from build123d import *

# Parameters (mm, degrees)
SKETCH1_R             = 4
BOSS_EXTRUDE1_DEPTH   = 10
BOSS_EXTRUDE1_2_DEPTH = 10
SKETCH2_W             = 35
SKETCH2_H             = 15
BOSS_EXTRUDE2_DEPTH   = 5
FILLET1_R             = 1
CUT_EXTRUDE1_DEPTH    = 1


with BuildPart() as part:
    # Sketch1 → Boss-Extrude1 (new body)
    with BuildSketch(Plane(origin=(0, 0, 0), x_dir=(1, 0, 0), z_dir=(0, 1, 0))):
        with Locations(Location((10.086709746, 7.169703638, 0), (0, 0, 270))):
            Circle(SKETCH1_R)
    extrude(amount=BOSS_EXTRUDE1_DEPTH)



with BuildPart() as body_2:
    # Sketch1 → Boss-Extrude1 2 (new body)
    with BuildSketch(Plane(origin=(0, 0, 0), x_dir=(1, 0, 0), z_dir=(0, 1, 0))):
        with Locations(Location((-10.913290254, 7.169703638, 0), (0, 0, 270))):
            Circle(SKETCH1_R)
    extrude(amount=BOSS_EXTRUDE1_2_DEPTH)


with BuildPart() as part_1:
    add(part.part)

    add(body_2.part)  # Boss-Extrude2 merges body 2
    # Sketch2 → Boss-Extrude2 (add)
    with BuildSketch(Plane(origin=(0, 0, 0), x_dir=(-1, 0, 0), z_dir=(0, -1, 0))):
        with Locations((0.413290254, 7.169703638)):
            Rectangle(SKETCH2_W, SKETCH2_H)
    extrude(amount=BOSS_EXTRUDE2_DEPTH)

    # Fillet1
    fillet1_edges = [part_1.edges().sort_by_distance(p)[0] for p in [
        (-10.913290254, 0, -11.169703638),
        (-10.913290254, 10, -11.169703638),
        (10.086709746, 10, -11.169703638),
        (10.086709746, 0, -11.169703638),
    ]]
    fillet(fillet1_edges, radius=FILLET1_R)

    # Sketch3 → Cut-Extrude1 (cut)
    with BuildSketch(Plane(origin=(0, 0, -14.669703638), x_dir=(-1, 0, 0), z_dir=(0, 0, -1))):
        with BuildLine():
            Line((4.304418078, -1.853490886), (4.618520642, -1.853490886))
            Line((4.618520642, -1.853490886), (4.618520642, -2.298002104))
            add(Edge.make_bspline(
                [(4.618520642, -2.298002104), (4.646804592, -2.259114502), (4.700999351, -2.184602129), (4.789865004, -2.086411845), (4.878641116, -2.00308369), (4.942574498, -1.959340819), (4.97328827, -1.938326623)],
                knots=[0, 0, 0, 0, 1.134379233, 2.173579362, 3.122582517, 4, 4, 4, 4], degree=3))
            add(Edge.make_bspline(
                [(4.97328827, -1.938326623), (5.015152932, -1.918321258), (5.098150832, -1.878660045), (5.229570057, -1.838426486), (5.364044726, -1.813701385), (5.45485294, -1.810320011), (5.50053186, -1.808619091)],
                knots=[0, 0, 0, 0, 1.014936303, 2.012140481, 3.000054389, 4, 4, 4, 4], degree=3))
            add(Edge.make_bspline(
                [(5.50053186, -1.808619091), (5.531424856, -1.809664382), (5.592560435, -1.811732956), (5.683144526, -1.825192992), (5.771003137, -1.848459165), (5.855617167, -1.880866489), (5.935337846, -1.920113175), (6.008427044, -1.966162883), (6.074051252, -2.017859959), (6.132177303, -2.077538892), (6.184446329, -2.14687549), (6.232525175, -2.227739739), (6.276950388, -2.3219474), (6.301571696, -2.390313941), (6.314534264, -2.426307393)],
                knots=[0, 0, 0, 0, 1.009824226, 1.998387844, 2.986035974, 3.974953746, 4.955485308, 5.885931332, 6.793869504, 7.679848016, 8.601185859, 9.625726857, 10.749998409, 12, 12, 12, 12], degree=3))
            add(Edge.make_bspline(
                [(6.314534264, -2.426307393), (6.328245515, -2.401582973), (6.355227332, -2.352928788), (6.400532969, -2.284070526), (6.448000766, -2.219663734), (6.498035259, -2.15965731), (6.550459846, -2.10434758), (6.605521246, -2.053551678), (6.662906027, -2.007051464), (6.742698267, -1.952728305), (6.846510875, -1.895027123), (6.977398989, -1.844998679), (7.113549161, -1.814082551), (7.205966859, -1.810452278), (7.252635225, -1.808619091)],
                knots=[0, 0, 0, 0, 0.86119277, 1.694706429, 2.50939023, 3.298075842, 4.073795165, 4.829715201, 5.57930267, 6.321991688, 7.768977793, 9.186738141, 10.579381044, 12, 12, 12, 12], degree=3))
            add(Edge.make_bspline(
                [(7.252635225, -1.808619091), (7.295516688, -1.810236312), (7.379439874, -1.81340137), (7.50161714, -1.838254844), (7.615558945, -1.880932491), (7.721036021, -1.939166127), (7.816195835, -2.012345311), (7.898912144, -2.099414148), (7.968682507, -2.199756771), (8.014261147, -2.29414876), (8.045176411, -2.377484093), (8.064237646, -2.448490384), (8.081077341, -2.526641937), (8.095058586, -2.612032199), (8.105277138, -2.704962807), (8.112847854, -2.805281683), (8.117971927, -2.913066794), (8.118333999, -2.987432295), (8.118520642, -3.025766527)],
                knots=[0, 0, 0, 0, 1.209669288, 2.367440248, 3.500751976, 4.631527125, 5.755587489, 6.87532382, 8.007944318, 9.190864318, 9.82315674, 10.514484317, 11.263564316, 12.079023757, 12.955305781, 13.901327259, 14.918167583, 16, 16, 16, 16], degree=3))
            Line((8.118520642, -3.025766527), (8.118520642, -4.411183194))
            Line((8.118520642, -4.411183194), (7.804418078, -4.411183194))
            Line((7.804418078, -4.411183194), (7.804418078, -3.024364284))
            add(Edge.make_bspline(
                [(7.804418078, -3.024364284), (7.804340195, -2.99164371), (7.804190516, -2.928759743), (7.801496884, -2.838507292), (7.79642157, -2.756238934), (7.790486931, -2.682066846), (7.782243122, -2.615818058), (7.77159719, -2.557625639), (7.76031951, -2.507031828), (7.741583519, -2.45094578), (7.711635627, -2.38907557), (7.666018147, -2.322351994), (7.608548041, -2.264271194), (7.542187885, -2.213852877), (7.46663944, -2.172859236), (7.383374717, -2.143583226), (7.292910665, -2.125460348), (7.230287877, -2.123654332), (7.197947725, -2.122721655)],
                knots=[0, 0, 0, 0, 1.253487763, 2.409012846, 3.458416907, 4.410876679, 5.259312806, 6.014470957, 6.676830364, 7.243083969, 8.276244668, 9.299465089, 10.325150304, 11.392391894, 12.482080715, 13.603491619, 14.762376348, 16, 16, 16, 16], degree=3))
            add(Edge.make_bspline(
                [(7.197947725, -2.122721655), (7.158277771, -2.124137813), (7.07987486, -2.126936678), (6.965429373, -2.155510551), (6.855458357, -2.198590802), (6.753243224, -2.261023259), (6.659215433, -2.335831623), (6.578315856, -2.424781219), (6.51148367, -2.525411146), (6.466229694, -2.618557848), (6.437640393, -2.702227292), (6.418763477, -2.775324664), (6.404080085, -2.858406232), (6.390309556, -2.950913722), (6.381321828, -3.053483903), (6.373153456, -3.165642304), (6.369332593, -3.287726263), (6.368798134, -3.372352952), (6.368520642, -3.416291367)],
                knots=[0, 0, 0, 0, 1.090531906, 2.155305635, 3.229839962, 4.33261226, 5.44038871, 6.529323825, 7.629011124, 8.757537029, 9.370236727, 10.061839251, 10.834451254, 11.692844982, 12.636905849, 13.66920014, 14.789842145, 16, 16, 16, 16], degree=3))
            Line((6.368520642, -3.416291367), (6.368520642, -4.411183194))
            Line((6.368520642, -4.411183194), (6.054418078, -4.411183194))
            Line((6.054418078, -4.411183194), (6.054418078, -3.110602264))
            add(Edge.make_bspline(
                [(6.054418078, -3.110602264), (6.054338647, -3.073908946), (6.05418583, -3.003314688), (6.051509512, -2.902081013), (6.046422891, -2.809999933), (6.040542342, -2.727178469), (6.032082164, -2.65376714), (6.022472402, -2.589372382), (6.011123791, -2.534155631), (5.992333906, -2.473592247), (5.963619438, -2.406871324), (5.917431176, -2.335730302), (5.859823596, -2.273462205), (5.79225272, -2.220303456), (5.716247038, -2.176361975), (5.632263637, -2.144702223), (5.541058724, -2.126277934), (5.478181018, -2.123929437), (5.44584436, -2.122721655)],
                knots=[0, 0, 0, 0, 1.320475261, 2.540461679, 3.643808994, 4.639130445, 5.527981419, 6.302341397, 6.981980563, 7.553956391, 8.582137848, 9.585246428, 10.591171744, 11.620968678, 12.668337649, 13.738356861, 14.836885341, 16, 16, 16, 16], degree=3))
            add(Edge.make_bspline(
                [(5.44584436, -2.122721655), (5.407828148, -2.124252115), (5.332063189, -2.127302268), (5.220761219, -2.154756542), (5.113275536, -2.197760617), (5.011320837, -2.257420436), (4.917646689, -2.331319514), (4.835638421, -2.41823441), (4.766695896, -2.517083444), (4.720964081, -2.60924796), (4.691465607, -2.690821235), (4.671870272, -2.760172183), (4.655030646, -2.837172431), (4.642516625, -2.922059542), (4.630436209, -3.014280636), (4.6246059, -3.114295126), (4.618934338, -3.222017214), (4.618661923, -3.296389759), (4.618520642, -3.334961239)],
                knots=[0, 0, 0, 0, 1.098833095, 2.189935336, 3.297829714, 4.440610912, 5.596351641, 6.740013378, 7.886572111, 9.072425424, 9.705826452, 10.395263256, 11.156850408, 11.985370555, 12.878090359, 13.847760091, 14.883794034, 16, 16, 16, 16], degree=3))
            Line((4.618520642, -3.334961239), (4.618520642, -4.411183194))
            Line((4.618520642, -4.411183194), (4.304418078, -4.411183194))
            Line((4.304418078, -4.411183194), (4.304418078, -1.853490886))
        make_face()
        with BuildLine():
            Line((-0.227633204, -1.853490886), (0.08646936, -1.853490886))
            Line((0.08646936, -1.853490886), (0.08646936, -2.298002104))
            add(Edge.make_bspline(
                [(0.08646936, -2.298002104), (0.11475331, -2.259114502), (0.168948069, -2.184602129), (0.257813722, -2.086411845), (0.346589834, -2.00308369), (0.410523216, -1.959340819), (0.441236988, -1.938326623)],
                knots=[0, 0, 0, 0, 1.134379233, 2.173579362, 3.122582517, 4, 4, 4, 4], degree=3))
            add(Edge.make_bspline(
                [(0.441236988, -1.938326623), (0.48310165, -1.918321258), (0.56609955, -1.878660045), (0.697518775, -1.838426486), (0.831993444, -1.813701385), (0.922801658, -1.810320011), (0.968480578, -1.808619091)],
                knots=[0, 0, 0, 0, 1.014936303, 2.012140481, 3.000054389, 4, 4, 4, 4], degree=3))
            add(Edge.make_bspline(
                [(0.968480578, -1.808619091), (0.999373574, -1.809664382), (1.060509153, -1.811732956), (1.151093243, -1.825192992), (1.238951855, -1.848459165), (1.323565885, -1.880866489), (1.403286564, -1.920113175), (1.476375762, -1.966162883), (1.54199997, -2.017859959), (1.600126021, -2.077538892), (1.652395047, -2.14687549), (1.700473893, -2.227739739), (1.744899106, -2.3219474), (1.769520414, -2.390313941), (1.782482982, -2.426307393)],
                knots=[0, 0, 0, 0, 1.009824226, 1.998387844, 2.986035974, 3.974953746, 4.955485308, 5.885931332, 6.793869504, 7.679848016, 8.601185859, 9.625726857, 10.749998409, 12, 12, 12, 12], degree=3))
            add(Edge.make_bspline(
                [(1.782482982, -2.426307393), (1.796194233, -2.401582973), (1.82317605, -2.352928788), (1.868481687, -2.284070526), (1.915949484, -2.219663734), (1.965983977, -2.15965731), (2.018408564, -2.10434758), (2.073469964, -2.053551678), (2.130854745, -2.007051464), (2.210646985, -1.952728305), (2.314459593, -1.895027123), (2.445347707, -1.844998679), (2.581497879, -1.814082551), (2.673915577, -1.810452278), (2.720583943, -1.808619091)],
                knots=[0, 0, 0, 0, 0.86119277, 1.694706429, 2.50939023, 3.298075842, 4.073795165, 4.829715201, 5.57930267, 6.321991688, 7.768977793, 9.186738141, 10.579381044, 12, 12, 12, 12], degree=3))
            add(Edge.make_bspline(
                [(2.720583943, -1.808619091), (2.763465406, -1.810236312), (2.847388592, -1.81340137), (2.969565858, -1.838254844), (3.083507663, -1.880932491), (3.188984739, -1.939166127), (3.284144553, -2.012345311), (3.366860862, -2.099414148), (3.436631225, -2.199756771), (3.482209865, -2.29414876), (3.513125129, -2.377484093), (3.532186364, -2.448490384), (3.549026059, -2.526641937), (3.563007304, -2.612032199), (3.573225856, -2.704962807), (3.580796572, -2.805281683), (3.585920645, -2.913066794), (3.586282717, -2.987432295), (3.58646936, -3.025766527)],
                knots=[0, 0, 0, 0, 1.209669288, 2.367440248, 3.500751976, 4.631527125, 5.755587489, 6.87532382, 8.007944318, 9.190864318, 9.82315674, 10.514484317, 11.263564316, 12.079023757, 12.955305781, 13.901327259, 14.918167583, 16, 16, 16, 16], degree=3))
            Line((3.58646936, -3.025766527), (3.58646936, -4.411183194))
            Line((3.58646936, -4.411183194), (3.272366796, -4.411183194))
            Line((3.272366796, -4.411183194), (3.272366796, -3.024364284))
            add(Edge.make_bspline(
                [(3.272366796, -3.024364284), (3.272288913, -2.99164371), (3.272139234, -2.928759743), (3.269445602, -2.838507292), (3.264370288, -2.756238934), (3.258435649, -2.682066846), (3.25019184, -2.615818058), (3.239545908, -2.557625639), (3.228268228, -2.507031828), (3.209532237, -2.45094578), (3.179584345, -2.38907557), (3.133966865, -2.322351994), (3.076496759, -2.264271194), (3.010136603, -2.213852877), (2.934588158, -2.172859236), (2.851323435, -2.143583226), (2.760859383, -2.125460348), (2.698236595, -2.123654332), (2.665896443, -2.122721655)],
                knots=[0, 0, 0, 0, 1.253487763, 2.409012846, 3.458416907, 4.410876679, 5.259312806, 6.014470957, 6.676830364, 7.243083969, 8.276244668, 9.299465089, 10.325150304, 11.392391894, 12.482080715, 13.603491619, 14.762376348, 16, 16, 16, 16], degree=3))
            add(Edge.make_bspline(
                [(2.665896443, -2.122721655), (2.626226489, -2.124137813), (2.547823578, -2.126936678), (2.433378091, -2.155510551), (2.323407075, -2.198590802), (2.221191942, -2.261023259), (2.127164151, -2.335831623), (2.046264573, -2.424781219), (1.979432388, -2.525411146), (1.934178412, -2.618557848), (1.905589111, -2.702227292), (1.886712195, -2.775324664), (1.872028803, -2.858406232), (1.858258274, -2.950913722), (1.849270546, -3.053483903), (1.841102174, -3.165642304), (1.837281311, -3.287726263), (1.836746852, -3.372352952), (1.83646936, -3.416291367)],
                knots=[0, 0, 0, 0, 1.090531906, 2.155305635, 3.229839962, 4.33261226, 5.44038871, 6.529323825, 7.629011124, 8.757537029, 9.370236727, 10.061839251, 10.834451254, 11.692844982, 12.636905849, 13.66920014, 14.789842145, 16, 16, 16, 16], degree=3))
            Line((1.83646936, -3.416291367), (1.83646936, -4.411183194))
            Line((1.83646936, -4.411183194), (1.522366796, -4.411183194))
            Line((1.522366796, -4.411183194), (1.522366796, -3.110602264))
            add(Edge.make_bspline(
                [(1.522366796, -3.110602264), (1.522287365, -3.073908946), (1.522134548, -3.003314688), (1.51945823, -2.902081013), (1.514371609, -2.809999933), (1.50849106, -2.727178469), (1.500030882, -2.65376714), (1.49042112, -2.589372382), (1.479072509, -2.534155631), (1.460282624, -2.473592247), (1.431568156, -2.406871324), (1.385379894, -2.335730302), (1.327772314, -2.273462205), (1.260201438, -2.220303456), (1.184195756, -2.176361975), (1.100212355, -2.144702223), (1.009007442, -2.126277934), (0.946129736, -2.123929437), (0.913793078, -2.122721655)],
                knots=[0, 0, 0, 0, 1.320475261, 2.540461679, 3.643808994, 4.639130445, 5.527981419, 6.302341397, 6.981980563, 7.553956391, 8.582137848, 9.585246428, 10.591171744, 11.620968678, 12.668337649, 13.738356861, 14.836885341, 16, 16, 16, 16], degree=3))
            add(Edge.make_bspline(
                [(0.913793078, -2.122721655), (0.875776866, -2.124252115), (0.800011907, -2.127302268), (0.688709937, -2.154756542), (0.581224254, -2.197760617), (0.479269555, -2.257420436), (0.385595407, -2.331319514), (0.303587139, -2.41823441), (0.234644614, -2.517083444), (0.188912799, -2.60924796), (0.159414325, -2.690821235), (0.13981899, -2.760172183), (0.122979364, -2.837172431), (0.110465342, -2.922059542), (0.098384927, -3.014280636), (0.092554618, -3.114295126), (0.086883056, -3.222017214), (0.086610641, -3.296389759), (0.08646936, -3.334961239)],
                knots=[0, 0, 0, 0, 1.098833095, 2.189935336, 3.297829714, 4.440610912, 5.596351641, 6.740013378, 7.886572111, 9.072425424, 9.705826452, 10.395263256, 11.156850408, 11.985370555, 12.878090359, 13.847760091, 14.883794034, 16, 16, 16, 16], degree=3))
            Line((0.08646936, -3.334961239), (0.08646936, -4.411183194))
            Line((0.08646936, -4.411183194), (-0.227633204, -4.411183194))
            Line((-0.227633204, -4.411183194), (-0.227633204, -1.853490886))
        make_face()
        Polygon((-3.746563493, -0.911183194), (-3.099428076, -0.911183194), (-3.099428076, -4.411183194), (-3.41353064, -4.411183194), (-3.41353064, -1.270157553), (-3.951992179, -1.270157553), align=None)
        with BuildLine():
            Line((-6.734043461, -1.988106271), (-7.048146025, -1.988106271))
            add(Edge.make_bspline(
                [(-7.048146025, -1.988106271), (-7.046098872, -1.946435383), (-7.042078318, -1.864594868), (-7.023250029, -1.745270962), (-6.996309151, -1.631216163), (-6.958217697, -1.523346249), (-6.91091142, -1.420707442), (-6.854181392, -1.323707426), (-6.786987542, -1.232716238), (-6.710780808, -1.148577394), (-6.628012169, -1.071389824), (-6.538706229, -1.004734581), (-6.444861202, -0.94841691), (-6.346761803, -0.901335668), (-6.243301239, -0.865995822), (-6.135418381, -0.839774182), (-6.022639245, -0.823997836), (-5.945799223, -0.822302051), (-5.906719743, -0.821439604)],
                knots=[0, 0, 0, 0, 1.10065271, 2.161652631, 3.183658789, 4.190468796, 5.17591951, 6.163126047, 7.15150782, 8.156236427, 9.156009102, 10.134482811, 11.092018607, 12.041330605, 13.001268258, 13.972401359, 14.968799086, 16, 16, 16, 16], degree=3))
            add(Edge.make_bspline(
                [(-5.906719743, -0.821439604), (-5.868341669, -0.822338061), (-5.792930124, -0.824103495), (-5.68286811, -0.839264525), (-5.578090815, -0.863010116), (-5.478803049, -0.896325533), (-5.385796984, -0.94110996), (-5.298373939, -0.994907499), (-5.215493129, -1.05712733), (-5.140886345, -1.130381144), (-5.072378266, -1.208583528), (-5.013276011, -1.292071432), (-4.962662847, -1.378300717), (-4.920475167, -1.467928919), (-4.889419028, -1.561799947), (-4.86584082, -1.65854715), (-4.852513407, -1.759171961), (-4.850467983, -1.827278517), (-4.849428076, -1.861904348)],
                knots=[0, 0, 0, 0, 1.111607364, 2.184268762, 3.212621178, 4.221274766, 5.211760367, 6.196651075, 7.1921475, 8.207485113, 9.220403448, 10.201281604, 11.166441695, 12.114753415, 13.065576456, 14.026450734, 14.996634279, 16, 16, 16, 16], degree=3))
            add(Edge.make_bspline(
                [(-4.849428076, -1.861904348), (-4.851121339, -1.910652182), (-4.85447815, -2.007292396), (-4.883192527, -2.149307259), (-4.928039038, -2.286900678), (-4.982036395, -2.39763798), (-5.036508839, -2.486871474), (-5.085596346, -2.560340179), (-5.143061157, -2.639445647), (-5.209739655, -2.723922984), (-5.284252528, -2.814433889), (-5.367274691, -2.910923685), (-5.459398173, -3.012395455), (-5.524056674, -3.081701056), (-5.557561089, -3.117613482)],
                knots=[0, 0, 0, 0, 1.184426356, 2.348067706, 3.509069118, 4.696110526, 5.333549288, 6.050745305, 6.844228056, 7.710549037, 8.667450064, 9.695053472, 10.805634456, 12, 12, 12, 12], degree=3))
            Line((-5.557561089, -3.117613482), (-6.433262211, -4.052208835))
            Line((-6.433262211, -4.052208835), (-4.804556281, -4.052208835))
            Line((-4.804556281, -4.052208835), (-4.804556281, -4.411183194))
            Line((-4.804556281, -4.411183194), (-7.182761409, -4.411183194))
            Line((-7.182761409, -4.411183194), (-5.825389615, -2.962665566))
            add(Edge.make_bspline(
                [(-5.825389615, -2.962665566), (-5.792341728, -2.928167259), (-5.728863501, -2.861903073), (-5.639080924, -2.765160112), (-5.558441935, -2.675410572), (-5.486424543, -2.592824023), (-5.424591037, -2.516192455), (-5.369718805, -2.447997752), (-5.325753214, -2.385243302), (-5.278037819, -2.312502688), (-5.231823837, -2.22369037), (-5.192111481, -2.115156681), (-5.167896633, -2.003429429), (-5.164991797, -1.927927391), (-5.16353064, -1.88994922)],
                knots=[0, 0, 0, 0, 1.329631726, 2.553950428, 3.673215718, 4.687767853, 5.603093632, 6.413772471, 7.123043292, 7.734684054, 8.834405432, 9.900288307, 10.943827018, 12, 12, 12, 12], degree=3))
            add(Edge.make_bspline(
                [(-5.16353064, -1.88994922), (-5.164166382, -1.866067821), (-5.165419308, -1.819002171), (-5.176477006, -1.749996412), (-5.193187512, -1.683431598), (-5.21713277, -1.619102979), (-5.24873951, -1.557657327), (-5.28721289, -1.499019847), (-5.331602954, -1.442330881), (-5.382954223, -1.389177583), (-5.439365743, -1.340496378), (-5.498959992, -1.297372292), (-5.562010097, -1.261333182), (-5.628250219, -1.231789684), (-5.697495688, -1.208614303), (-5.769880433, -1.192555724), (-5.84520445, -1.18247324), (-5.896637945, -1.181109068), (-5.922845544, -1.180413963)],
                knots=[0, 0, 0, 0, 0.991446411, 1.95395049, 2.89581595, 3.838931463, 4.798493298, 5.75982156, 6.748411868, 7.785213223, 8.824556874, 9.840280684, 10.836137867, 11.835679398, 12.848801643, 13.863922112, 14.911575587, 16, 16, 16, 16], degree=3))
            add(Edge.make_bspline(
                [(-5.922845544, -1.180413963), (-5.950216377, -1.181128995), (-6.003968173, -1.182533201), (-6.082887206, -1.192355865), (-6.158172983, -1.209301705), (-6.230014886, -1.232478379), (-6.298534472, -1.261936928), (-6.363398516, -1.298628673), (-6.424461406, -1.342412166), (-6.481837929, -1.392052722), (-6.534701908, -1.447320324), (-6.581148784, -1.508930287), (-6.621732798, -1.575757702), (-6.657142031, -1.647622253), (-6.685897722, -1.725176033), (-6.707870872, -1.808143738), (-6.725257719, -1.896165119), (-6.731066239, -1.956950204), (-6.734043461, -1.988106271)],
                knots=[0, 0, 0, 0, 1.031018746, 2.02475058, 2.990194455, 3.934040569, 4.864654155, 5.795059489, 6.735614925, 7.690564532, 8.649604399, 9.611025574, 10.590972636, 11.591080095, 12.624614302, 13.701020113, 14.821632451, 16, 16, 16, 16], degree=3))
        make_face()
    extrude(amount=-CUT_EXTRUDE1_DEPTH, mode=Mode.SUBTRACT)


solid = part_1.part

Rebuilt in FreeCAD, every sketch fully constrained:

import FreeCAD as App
import Part
import Sketcher

V = App.Vector


def edges_at(feature, points):
    """Names of the edges that pass closest to the given points."""
    edges = feature.Shape.Edges
    near = lambda p: min(range(len(edges)), key=lambda i: edges[i].distToShape(Part.Vertex(*p))[0])
    return sorted({f"Edge{near(p) + 1}" for p in points})

doc = App.newDocument("Part")
body = doc.addObject("PartDesign::Body", "Body")

sketch1 = doc.addObject("Sketcher::SketchObject", "Sketch")
body.addObject(sketch1)
sketch1.AttachmentSupport = (doc.XZ_Plane, [""])
sketch1.MapMode = "FlatFace"
sketch1.addGeometry(Part.Circle(V(10.08671, -7.169704, 0), V(0, 0, 1), 4), False)
sketch1.addConstraint(Sketcher.Constraint("Diameter", 0, 8.0))
sketch1.addConstraint(Sketcher.Constraint("DistanceX", -1, 1, 0, 3, 10.08671))
sketch1.addConstraint(Sketcher.Constraint("DistanceY", 0, 3, -1, 1, 7.169704))
pad1 = doc.addObject("PartDesign::Pad", "Pad")
body.addObject(pad1)
pad1.Profile = sketch1
pad1.Length = 10
pad1.Reversed = True
body2 = doc.addObject("PartDesign::Body", "Body001")

sketch2 = doc.addObject("Sketcher::SketchObject", "Sketch001")
body2.addObject(sketch2)
sketch2.AttachmentSupport = (doc.getObject("XZ_Plane001"), [""])
sketch2.MapMode = "FlatFace"
sketch2.addGeometry(Part.Circle(V(-10.91329, -7.169704, 0), V(0, 0, 1), 4), False)
sketch2.addConstraint(Sketcher.Constraint("Diameter", 0, 8.0))
sketch2.addConstraint(Sketcher.Constraint("DistanceX", 0, 3, -1, 1, 10.91329))
sketch2.addConstraint(Sketcher.Constraint("DistanceY", 0, 3, -1, 1, 7.169704))
pad2 = doc.addObject("PartDesign::Pad", "Pad001")
body2.addObject(pad2)
pad2.Profile = sketch2
pad2.Length = 10
pad2.Reversed = True
body.AllowCompound = True
doc.recompute()

boolean = doc.addObject("PartDesign::Boolean", "Boolean")
body.addObject(boolean)
boolean.Type = "Fuse"
boolean.addObjects([body2])

sketch3 = doc.addObject("Sketcher::SketchObject", "Sketch002")
body.addObject(sketch3)
sketch3.AttachmentSupport = (doc.XZ_Plane, [""])
sketch3.MapMode = "FlatFace"
sketch3.addGeometry(Part.LineSegment(V(17.08671, -14.669704, 0), V(17.08671, 0.330296, 0)), False)
sketch3.addGeometry(Part.LineSegment(V(17.08671, 0.330296, 0), V(-17.91329, 0.330296, 0)), False)
sketch3.addGeometry(Part.LineSegment(V(-17.91329, 0.330296, 0), V(-17.91329, -14.669704, 0)), False)
sketch3.addGeometry(Part.LineSegment(V(-17.91329, -14.669704, 0), V(17.08671, -14.669704, 0)), False)
sketch3.addConstraint(Sketcher.Constraint("Coincident", 0, 2, 1, 1))
sketch3.addConstraint(Sketcher.Constraint("Coincident", 1, 2, 2, 1))
sketch3.addConstraint(Sketcher.Constraint("Coincident", 2, 2, 3, 1))
sketch3.addConstraint(Sketcher.Constraint("Coincident", 3, 2, 0, 1))
sketch3.addConstraint(Sketcher.Constraint("Vertical", 0))
sketch3.addConstraint(Sketcher.Constraint("Horizontal", 1))
sketch3.addConstraint(Sketcher.Constraint("Vertical", 2))
sketch3.addConstraint(Sketcher.Constraint("Horizontal", 3))
sketch3.addConstraint(Sketcher.Constraint("DistanceX", 1, 2, 1, 1, 35.0))
sketch3.addConstraint(Sketcher.Constraint("DistanceY", 0, 1, 0, 2, 15.0))
sketch3.addConstraint(Sketcher.Constraint("DistanceX", -1, 1, 0, 2, 17.08671))
sketch3.addConstraint(Sketcher.Constraint("DistanceY", -1, 1, 0, 2, 0.330296))
pad3 = doc.addObject("PartDesign::Pad", "Pad002")
body.addObject(pad3)
pad3.Profile = sketch3
pad3.Length = 5
doc.recompute()

fillet = doc.addObject("PartDesign::Fillet", "Fillet")
body.addObject(fillet)
fillet.Base = (pad3, edges_at(pad3, [
    (-10.913, 0, -11.17),
    (-10.913, 10, -11.17),
    (10.087, 10, -11.17),
    (10.087, 0, -11.17),
]))
fillet.Radius = 1

sketch4 = doc.addObject("Sketcher::SketchObject", "Sketch003")
body.addObject(sketch4)
sketch4.AttachmentSupport = (doc.XY_Plane, [""])
sketch4.MapMode = "FlatFace"
sketch4.AttachmentOffset = App.Placement(V(0, 0, -14.669704), App.Rotation())
sketch4.addGeometry(Part.LineSegment(V(-4.618521, -1.853491, 0), V(-4.304418, -1.853491, 0)), False)
sketch4.addGeometry(Part.LineSegment(V(-4.304418, -1.853491, 0), V(-4.304418, -4.411183, 0)), False)
sketch4.addGeometry(Part.LineSegment(V(-4.304418, -4.411183, 0), V(-4.618521, -4.411183, 0)), False)
sketch4.addGeometry(Part.LineSegment(V(-4.618521, -4.411183, 0), V(-4.618521, -3.334961, 0)), False)
sketch4.addGeometry(Part.BSplineCurve([V(-5.445844, -2.122722, 0), V(-5.407828, -2.124252, 0), V(-5.332063, -2.127302, 0), V(-5.220761, -2.154757, 0), V(-5.113276, -2.197761, 0), V(-5.011321, -2.25742, 0), V(-4.917647, -2.33132, 0), V(-4.835638, -2.418234, 0), V(-4.766696, -2.517083, 0), V(-4.720964, -2.609248, 0), V(-4.691466, -2.690821, 0), V(-4.67187, -2.760172, 0), V(-4.655031, -2.837172, 0), V(-4.642517, -2.92206, 0), V(-4.630436, -3.014281, 0), V(-4.624606, -3.114295, 0), V(-4.618934, -3.222017, 0), V(-4.618662, -3.29639, 0), V(-4.618521, -3.334961, 0)], [4, 1, 1, 1, 1, 1, 1, 1, 1, 1, 1, 1, 1, 1, 1, 1, 4], [0, 1.098833095, 2.189935336, 3.297829714, 4.440610912, 5.596351641, 6.740013378, 7.886572111, 9.072425424, 9.705826452, 10.395263256, 11.156850408, 11.985370555, 12.878090359, 13.847760091, 14.883794034, 16], False, 3, [1, 1, 1, 1, 1, 1, 1, 1, 1, 1, 1, 1, 1, 1, 1, 1, 1, 1, 1], False), False)
sketch4.addGeometry(Part.BSplineCurve([V(-6.054418, -3.110602, 0), V(-6.054339, -3.073909, 0), V(-6.054186, -3.003315, 0), V(-6.05151, -2.902081, 0), V(-6.046423, -2.81, 0), V(-6.040542, -2.727178, 0), V(-6.032082, -2.653767, 0), V(-6.022472, -2.589372, 0), V(-6.011124, -2.534156, 0), V(-5.992334, -2.473592, 0), V(-5.963619, -2.406871, 0), V(-5.917431, -2.33573, 0), V(-5.859824, -2.273462, 0), V(-5.792253, -2.220303, 0), V(-5.716247, -2.176362, 0), V(-5.632264, -2.144702, 0), V(-5.541059, -2.126278, 0), V(-5.478181, -2.123929, 0), V(-5.445844, -2.122722, 0)], [4, 1, 1, 1, 1, 1, 1, 1, 1, 1, 1, 1, 1, 1, 1, 1, 4], [0, 1.320475261, 2.540461679, 3.643808994, 4.639130445, 5.527981419, 6.302341397, 6.981980563, 7.553956391, 8.582137848, 9.585246428, 10.591171744, 11.620968678, 12.668337649, 13.738356861, 14.836885341, 16], False, 3, [1, 1, 1, 1, 1, 1, 1, 1, 1, 1, 1, 1, 1, 1, 1, 1, 1, 1, 1], False), False)
sketch4.addGeometry(Part.LineSegment(V(-6.054418, -3.110602, 0), V(-6.054418, -4.411183, 0)), False)
sketch4.addGeometry(Part.LineSegment(V(-6.054418, -4.411183, 0), V(-6.368521, -4.411183, 0)), False)
sketch4.addGeometry(Part.LineSegment(V(-6.368521, -4.411183, 0), V(-6.368521, -3.416291, 0)), False)
sketch4.addGeometry(Part.BSplineCurve([V(-7.197948, -2.122722, 0), V(-7.158278, -2.124138, 0), V(-7.079875, -2.126937, 0), V(-6.965429, -2.155511, 0), V(-6.855458, -2.198591, 0), V(-6.753243, -2.261023, 0), V(-6.659215, -2.335832, 0), V(-6.578316, -2.424781, 0), V(-6.511484, -2.525411, 0), V(-6.46623, -2.618558, 0), V(-6.43764, -2.702227, 0), V(-6.418763, -2.775325, 0), V(-6.40408, -2.858406, 0), V(-6.39031, -2.950914, 0), V(-6.381322, -3.053484, 0), V(-6.373153, -3.165642, 0), V(-6.369333, -3.287726, 0), V(-6.368798, -3.372353, 0), V(-6.368521, -3.416291, 0)], [4, 1, 1, 1, 1, 1, 1, 1, 1, 1, 1, 1, 1, 1, 1, 1, 4], [0, 1.090531906, 2.155305635, 3.229839962, 4.33261226, 5.44038871, 6.529323825, 7.629011124, 8.757537029, 9.370236727, 10.061839251, 10.834451254, 11.692844982, 12.636905849, 13.66920014, 14.789842145, 16], False, 3, [1, 1, 1, 1, 1, 1, 1, 1, 1, 1, 1, 1, 1, 1, 1, 1, 1, 1, 1], False), False)
sketch4.addGeometry(Part.BSplineCurve([V(-7.804418, -3.024364, 0), V(-7.80434, -2.991644, 0), V(-7.804191, -2.92876, 0), V(-7.801497, -2.838507, 0), V(-7.796422, -2.756239, 0), V(-7.790487, -2.682067, 0), V(-7.782243, -2.615818, 0), V(-7.771597, -2.557626, 0), V(-7.76032, -2.507032, 0), V(-7.741584, -2.450946, 0), V(-7.711636, -2.389076, 0), V(-7.666018, -2.322352, 0), V(-7.608548, -2.264271, 0), V(-7.542188, -2.213853, 0), V(-7.466639, -2.172859, 0), V(-7.383375, -2.143583, 0), V(-7.292911, -2.12546, 0), V(-7.230288, -2.123654, 0), V(-7.197948, -2.122722, 0)], [4, 1, 1, 1, 1, 1, 1, 1, 1, 1, 1, 1, 1, 1, 1, 1, 4], [0, 1.253487763, 2.409012846, 3.458416907, 4.410876679, 5.259312806, 6.014470957, 6.676830364, 7.243083969, 8.276244668, 9.299465089, 10.325150304, 11.392391894, 12.482080715, 13.603491619, 14.762376348, 16], False, 3, [1, 1, 1, 1, 1, 1, 1, 1, 1, 1, 1, 1, 1, 1, 1, 1, 1, 1, 1], False), False)
sketch4.addGeometry(Part.LineSegment(V(-7.804418, -3.024364, 0), V(-7.804418, -4.411183, 0)), False)
sketch4.addGeometry(Part.LineSegment(V(-7.804418, -4.411183, 0), V(-8.118521, -4.411183, 0)), False)
sketch4.addGeometry(Part.LineSegment(V(-8.118521, -4.411183, 0), V(-8.118521, -3.025767, 0)), False)
sketch4.addGeometry(Part.BSplineCurve([V(-7.252635, -1.808619, 0), V(-7.295517, -1.810236, 0), V(-7.37944, -1.813401, 0), V(-7.501617, -1.838255, 0), V(-7.615559, -1.880932, 0), V(-7.721036, -1.939166, 0), V(-7.816196, -2.012345, 0), V(-7.898912, -2.099414, 0), V(-7.968683, -2.199757, 0), V(-8.014261, -2.294149, 0), V(-8.045176, -2.377484, 0), V(-8.064238, -2.44849, 0), V(-8.081077, -2.526642, 0), V(-8.095059, -2.612032, 0), V(-8.105277, -2.704963, 0), V(-8.112848, -2.805282, 0), V(-8.117972, -2.913067, 0), V(-8.118334, -2.987432, 0), V(-8.118521, -3.025767, 0)], [4, 1, 1, 1, 1, 1, 1, 1, 1, 1, 1, 1, 1, 1, 1, 1, 4], [0, 1.209669288, 2.367440248, 3.500751976, 4.631527125, 5.755587489, 6.87532382, 8.007944318, 9.190864318, 9.82315674, 10.514484317, 11.263564316, 12.079023757, 12.955305781, 13.901327259, 14.918167583, 16], False, 3, [1, 1, 1, 1, 1, 1, 1, 1, 1, 1, 1, 1, 1, 1, 1, 1, 1, 1, 1], False), False)
sketch4.addGeometry(Part.BSplineCurve([V(-6.314534, -2.426307, 0), V(-6.328246, -2.401583, 0), V(-6.355227, -2.352929, 0), V(-6.400533, -2.284071, 0), V(-6.448001, -2.219664, 0), V(-6.498035, -2.159657, 0), V(-6.55046, -2.104348, 0), V(-6.605521, -2.053552, 0), V(-6.662906, -2.007051, 0), V(-6.742698, -1.952728, 0), V(-6.846511, -1.895027, 0), V(-6.977399, -1.844999, 0), V(-7.113549, -1.814083, 0), V(-7.205967, -1.810452, 0), V(-7.252635, -1.808619, 0)], [4, 1, 1, 1, 1, 1, 1, 1, 1, 1, 1, 1, 4], [0, 0.86119277, 1.694706429, 2.50939023, 3.298075842, 4.073795165, 4.829715201, 5.57930267, 6.321991688, 7.768977793, 9.186738141, 10.579381044, 12], False, 3, [1, 1, 1, 1, 1, 1, 1, 1, 1, 1, 1, 1, 1, 1, 1], False), False)
sketch4.addGeometry(Part.BSplineCurve([V(-5.500532, -1.808619, 0), V(-5.531425, -1.809664, 0), V(-5.59256, -1.811733, 0), V(-5.683145, -1.825193, 0), V(-5.771003, -1.848459, 0), V(-5.855617, -1.880866, 0), V(-5.935338, -1.920113, 0), V(-6.008427, -1.966163, 0), V(-6.074051, -2.01786, 0), V(-6.132177, -2.077539, 0), V(-6.184446, -2.146875, 0), V(-6.232525, -2.22774, 0), V(-6.27695, -2.321947, 0), V(-6.301572, -2.390314, 0), V(-6.314534, -2.426307, 0)], [4, 1, 1, 1, 1, 1, 1, 1, 1, 1, 1, 1, 4], [0, 1.009824226, 1.998387844, 2.986035974, 3.974953746, 4.955485308, 5.885931332, 6.793869504, 7.679848016, 8.601185859, 9.625726857, 10.749998409, 12], False, 3, [1, 1, 1, 1, 1, 1, 1, 1, 1, 1, 1, 1, 1, 1, 1], False), False)
sketch4.addGeometry(Part.BSplineCurve([V(-4.973288, -1.938327, 0), V(-5.015153, -1.918321, 0), V(-5.098151, -1.87866, 0), V(-5.22957, -1.838426, 0), V(-5.364045, -1.813701, 0), V(-5.454853, -1.81032, 0), V(-5.500532, -1.808619, 0)], [4, 1, 1, 1, 4], [0, 1.014936303, 2.012140481, 3.000054389, 4], False, 3, [1, 1, 1, 1, 1, 1, 1], False), False)
sketch4.addGeometry(Part.BSplineCurve([V(-4.618521, -2.298002, 0), V(-4.646805, -2.259115, 0), V(-4.700999, -2.184602, 0), V(-4.789865, -2.086412, 0), V(-4.878641, -2.003084, 0), V(-4.942574, -1.959341, 0), V(-4.973288, -1.938327, 0)], [4, 1, 1, 1, 4], [0, 1.134379233, 2.173579362, 3.122582517, 4], False, 3, [1, 1, 1, 1, 1, 1, 1], False), False)
sketch4.addGeometry(Part.LineSegment(V(-4.618521, -2.298002, 0), V(-4.618521, -1.853491, 0)), False)
sketch4.addGeometry(Part.LineSegment(V(-0.086469, -1.853491, 0), V(0.227633, -1.853491, 0)), False)
sketch4.addGeometry(Part.LineSegment(V(0.227633, -1.853491, 0), V(0.227633, -4.411183, 0)), False)
sketch4.addGeometry(Part.LineSegment(V(0.227633, -4.411183, 0), V(-0.086469, -4.411183, 0)), False)
sketch4.addGeometry(Part.LineSegment(V(-0.086469, -4.411183, 0), V(-0.086469, -3.334961, 0)), False)
sketch4.addGeometry(Part.BSplineCurve([V(-0.913793, -2.122722, 0), V(-0.875777, -2.124252, 0), V(-0.800012, -2.127302, 0), V(-0.68871, -2.154757, 0), V(-0.581224, -2.197761, 0), V(-0.47927, -2.25742, 0), V(-0.385595, -2.33132, 0), V(-0.303587, -2.418234, 0), V(-0.234645, -2.517083, 0), V(-0.188913, -2.609248, 0), V(-0.159414, -2.690821, 0), V(-0.139819, -2.760172, 0), V(-0.122979, -2.837172, 0), V(-0.110465, -2.92206, 0), V(-0.098385, -3.014281, 0), V(-0.092555, -3.114295, 0), V(-0.086883, -3.222017, 0), V(-0.086611, -3.29639, 0), V(-0.086469, -3.334961, 0)], [4, 1, 1, 1, 1, 1, 1, 1, 1, 1, 1, 1, 1, 1, 1, 1, 4], [0, 1.098833095, 2.189935336, 3.297829714, 4.440610912, 5.596351641, 6.740013378, 7.886572111, 9.072425424, 9.705826452, 10.395263256, 11.156850408, 11.985370555, 12.878090359, 13.847760091, 14.883794034, 16], False, 3, [1, 1, 1, 1, 1, 1, 1, 1, 1, 1, 1, 1, 1, 1, 1, 1, 1, 1, 1], False), False)
sketch4.addGeometry(Part.BSplineCurve([V(-1.522367, -3.110602, 0), V(-1.522287, -3.073909, 0), V(-1.522135, -3.003315, 0), V(-1.519458, -2.902081, 0), V(-1.514372, -2.81, 0), V(-1.508491, -2.727178, 0), V(-1.500031, -2.653767, 0), V(-1.490421, -2.589372, 0), V(-1.479073, -2.534156, 0), V(-1.460283, -2.473592, 0), V(-1.431568, -2.406871, 0), V(-1.38538, -2.33573, 0), V(-1.327772, -2.273462, 0), V(-1.260201, -2.220303, 0), V(-1.184196, -2.176362, 0), V(-1.100212, -2.144702, 0), V(-1.009007, -2.126278, 0), V(-0.94613, -2.123929, 0), V(-0.913793, -2.122722, 0)], [4, 1, 1, 1, 1, 1, 1, 1, 1, 1, 1, 1, 1, 1, 1, 1, 4], [0, 1.320475261, 2.540461679, 3.643808994, 4.639130445, 5.527981419, 6.302341397, 6.981980563, 7.553956391, 8.582137848, 9.585246428, 10.591171744, 11.620968678, 12.668337649, 13.738356861, 14.836885341, 16], False, 3, [1, 1, 1, 1, 1, 1, 1, 1, 1, 1, 1, 1, 1, 1, 1, 1, 1, 1, 1], False), False)
sketch4.addGeometry(Part.LineSegment(V(-1.522367, -3.110602, 0), V(-1.522367, -4.411183, 0)), False)
sketch4.addGeometry(Part.LineSegment(V(-1.522367, -4.411183, 0), V(-1.836469, -4.411183, 0)), False)
sketch4.addGeometry(Part.LineSegment(V(-1.836469, -4.411183, 0), V(-1.836469, -3.416291, 0)), False)
sketch4.addGeometry(Part.BSplineCurve([V(-2.665896, -2.122722, 0), V(-2.626226, -2.124138, 0), V(-2.547824, -2.126937, 0), V(-2.433378, -2.155511, 0), V(-2.323407, -2.198591, 0), V(-2.221192, -2.261023, 0), V(-2.127164, -2.335832, 0), V(-2.046265, -2.424781, 0), V(-1.979432, -2.525411, 0), V(-1.934178, -2.618558, 0), V(-1.905589, -2.702227, 0), V(-1.886712, -2.775325, 0), V(-1.872029, -2.858406, 0), V(-1.858258, -2.950914, 0), V(-1.849271, -3.053484, 0), V(-1.841102, -3.165642, 0), V(-1.837281, -3.287726, 0), V(-1.836747, -3.372353, 0), V(-1.836469, -3.416291, 0)], [4, 1, 1, 1, 1, 1, 1, 1, 1, 1, 1, 1, 1, 1, 1, 1, 4], [0, 1.090531906, 2.155305635, 3.229839962, 4.33261226, 5.44038871, 6.529323825, 7.629011124, 8.757537029, 9.370236727, 10.061839251, 10.834451254, 11.692844982, 12.636905849, 13.66920014, 14.789842145, 16], False, 3, [1, 1, 1, 1, 1, 1, 1, 1, 1, 1, 1, 1, 1, 1, 1, 1, 1, 1, 1], False), False)
sketch4.addGeometry(Part.BSplineCurve([V(-3.272367, -3.024364, 0), V(-3.272289, -2.991644, 0), V(-3.272139, -2.92876, 0), V(-3.269446, -2.838507, 0), V(-3.26437, -2.756239, 0), V(-3.258436, -2.682067, 0), V(-3.250192, -2.615818, 0), V(-3.239546, -2.557626, 0), V(-3.228268, -2.507032, 0), V(-3.209532, -2.450946, 0), V(-3.179584, -2.389076, 0), V(-3.133967, -2.322352, 0), V(-3.076497, -2.264271, 0), V(-3.010137, -2.213853, 0), V(-2.934588, -2.172859, 0), V(-2.851323, -2.143583, 0), V(-2.760859, -2.12546, 0), V(-2.698237, -2.123654, 0), V(-2.665896, -2.122722, 0)], [4, 1, 1, 1, 1, 1, 1, 1, 1, 1, 1, 1, 1, 1, 1, 1, 4], [0, 1.253487763, 2.409012846, 3.458416907, 4.410876679, 5.259312806, 6.014470957, 6.676830364, 7.243083969, 8.276244668, 9.299465089, 10.325150304, 11.392391894, 12.482080715, 13.603491619, 14.762376348, 16], False, 3, [1, 1, 1, 1, 1, 1, 1, 1, 1, 1, 1, 1, 1, 1, 1, 1, 1, 1, 1], False), False)
sketch4.addGeometry(Part.LineSegment(V(-3.272367, -3.024364, 0), V(-3.272367, -4.411183, 0)), False)
sketch4.addGeometry(Part.LineSegment(V(-3.272367, -4.411183, 0), V(-3.586469, -4.411183, 0)), False)
sketch4.addGeometry(Part.LineSegment(V(-3.586469, -4.411183, 0), V(-3.586469, -3.025767, 0)), False)
sketch4.addGeometry(Part.BSplineCurve([V(-2.720584, -1.808619, 0), V(-2.763465, -1.810236, 0), V(-2.847389, -1.813401, 0), V(-2.969566, -1.838255, 0), V(-3.083508, -1.880932, 0), V(-3.188985, -1.939166, 0), V(-3.284145, -2.012345, 0), V(-3.366861, -2.099414, 0), V(-3.436631, -2.199757, 0), V(-3.48221, -2.294149, 0), V(-3.513125, -2.377484, 0), V(-3.532186, -2.44849, 0), V(-3.549026, -2.526642, 0), V(-3.563007, -2.612032, 0), V(-3.573226, -2.704963, 0), V(-3.580797, -2.805282, 0), V(-3.585921, -2.913067, 0), V(-3.586283, -2.987432, 0), V(-3.586469, -3.025767, 0)], [4, 1, 1, 1, 1, 1, 1, 1, 1, 1, 1, 1, 1, 1, 1, 1, 4], [0, 1.209669288, 2.367440248, 3.500751976, 4.631527125, 5.755587489, 6.87532382, 8.007944318, 9.190864318, 9.82315674, 10.514484317, 11.263564316, 12.079023757, 12.955305781, 13.901327259, 14.918167583, 16], False, 3, [1, 1, 1, 1, 1, 1, 1, 1, 1, 1, 1, 1, 1, 1, 1, 1, 1, 1, 1], False), False)
sketch4.addGeometry(Part.BSplineCurve([V(-1.782483, -2.426307, 0), V(-1.796194, -2.401583, 0), V(-1.823176, -2.352929, 0), V(-1.868482, -2.284071, 0), V(-1.915949, -2.219664, 0), V(-1.965984, -2.159657, 0), V(-2.018409, -2.104348, 0), V(-2.07347, -2.053552, 0), V(-2.130855, -2.007051, 0), V(-2.210647, -1.952728, 0), V(-2.31446, -1.895027, 0), V(-2.445348, -1.844999, 0), V(-2.581498, -1.814083, 0), V(-2.673916, -1.810452, 0), V(-2.720584, -1.808619, 0)], [4, 1, 1, 1, 1, 1, 1, 1, 1, 1, 1, 1, 4], [0, 0.86119277, 1.694706429, 2.50939023, 3.298075842, 4.073795165, 4.829715201, 5.57930267, 6.321991688, 7.768977793, 9.186738141, 10.579381044, 12], False, 3, [1, 1, 1, 1, 1, 1, 1, 1, 1, 1, 1, 1, 1, 1, 1], False), False)
sketch4.addGeometry(Part.BSplineCurve([V(-0.968481, -1.808619, 0), V(-0.999374, -1.809664, 0), V(-1.060509, -1.811733, 0), V(-1.151093, -1.825193, 0), V(-1.238952, -1.848459, 0), V(-1.323566, -1.880866, 0), V(-1.403287, -1.920113, 0), V(-1.476376, -1.966163, 0), V(-1.542, -2.01786, 0), V(-1.600126, -2.077539, 0), V(-1.652395, -2.146875, 0), V(-1.700474, -2.22774, 0), V(-1.744899, -2.321947, 0), V(-1.76952, -2.390314, 0), V(-1.782483, -2.426307, 0)], [4, 1, 1, 1, 1, 1, 1, 1, 1, 1, 1, 1, 4], [0, 1.009824226, 1.998387844, 2.986035974, 3.974953746, 4.955485308, 5.885931332, 6.793869504, 7.679848016, 8.601185859, 9.625726857, 10.749998409, 12], False, 3, [1, 1, 1, 1, 1, 1, 1, 1, 1, 1, 1, 1, 1, 1, 1], False), False)
sketch4.addGeometry(Part.BSplineCurve([V(-0.441237, -1.938327, 0), V(-0.483102, -1.918321, 0), V(-0.5661, -1.87866, 0), V(-0.697519, -1.838426, 0), V(-0.831993, -1.813701, 0), V(-0.922802, -1.81032, 0), V(-0.968481, -1.808619, 0)], [4, 1, 1, 1, 4], [0, 1.014936303, 2.012140481, 3.000054389, 4], False, 3, [1, 1, 1, 1, 1, 1, 1], False), False)
sketch4.addGeometry(Part.BSplineCurve([V(-0.086469, -2.298002, 0), V(-0.114753, -2.259115, 0), V(-0.168948, -2.184602, 0), V(-0.257814, -2.086412, 0), V(-0.34659, -2.003084, 0), V(-0.410523, -1.959341, 0), V(-0.441237, -1.938327, 0)], [4, 1, 1, 1, 4], [0, 1.134379233, 2.173579362, 3.122582517, 4], False, 3, [1, 1, 1, 1, 1, 1, 1], False), False)
sketch4.addGeometry(Part.LineSegment(V(-0.086469, -2.298002, 0), V(-0.086469, -1.853491, 0)), False)
sketch4.addGeometry(Part.LineSegment(V(3.099428, -0.911183, 0), V(3.746563, -0.911183, 0)), False)
sketch4.addGeometry(Part.LineSegment(V(3.746563, -0.911183, 0), V(3.951992, -1.270158, 0)), False)
sketch4.addGeometry(Part.LineSegment(V(3.951992, -1.270158, 0), V(3.413531, -1.270158, 0)), False)
sketch4.addGeometry(Part.LineSegment(V(3.413531, -1.270158, 0), V(3.413531, -4.411183, 0)), False)
sketch4.addGeometry(Part.LineSegment(V(3.413531, -4.411183, 0), V(3.099428, -4.411183, 0)), False)
sketch4.addGeometry(Part.LineSegment(V(3.099428, -4.411183, 0), V(3.099428, -0.911183, 0)), False)
sketch4.addGeometry(Part.LineSegment(V(7.048146, -1.988106, 0), V(6.734043, -1.988106, 0)), False)
sketch4.addGeometry(Part.BSplineCurve([V(5.922846, -1.180414, 0), V(5.950216, -1.181129, 0), V(6.003968, -1.182533, 0), V(6.082887, -1.192356, 0), V(6.158173, -1.209302, 0), V(6.230015, -1.232478, 0), V(6.298534, -1.261937, 0), V(6.363399, -1.298629, 0), V(6.424461, -1.342412, 0), V(6.481838, -1.392053, 0), V(6.534702, -1.44732, 0), V(6.581149, -1.50893, 0), V(6.621733, -1.575758, 0), V(6.657142, -1.647622, 0), V(6.685898, -1.725176, 0), V(6.707871, -1.808144, 0), V(6.725258, -1.896165, 0), V(6.731066, -1.95695, 0), V(6.734043, -1.988106, 0)], [4, 1, 1, 1, 1, 1, 1, 1, 1, 1, 1, 1, 1, 1, 1, 1, 4], [0, 1.031018746, 2.02475058, 2.990194455, 3.934040569, 4.864654155, 5.795059489, 6.735614925, 7.690564532, 8.649604399, 9.611025574, 10.590972636, 11.591080095, 12.624614302, 13.701020113, 14.821632451, 16], False, 3, [1, 1, 1, 1, 1, 1, 1, 1, 1, 1, 1, 1, 1, 1, 1, 1, 1, 1, 1], False), False)
sketch4.addGeometry(Part.BSplineCurve([V(5.163531, -1.889949, 0), V(5.164166, -1.866068, 0), V(5.165419, -1.819002, 0), V(5.176477, -1.749996, 0), V(5.193188, -1.683432, 0), V(5.217133, -1.619103, 0), V(5.24874, -1.557657, 0), V(5.287213, -1.49902, 0), V(5.331603, -1.442331, 0), V(5.382954, -1.389178, 0), V(5.439366, -1.340496, 0), V(5.49896, -1.297372, 0), V(5.56201, -1.261333, 0), V(5.62825, -1.23179, 0), V(5.697496, -1.208614, 0), V(5.76988, -1.192556, 0), V(5.845204, -1.182473, 0), V(5.896638, -1.181109, 0), V(5.922846, -1.180414, 0)], [4, 1, 1, 1, 1, 1, 1, 1, 1, 1, 1, 1, 1, 1, 1, 1, 4], [0, 0.991446411, 1.95395049, 2.89581595, 3.838931463, 4.798493298, 5.75982156, 6.748411868, 7.785213223, 8.824556874, 9.840280684, 10.836137867, 11.835679398, 12.848801643, 13.863922112, 14.911575587, 16], False, 3, [1, 1, 1, 1, 1, 1, 1, 1, 1, 1, 1, 1, 1, 1, 1, 1, 1, 1, 1], False), False)
sketch4.addGeometry(Part.BSplineCurve([V(5.82539, -2.962666, 0), V(5.792342, -2.928167, 0), V(5.728864, -2.861903, 0), V(5.639081, -2.76516, 0), V(5.558442, -2.675411, 0), V(5.486425, -2.592824, 0), V(5.424591, -2.516192, 0), V(5.369719, -2.447998, 0), V(5.325753, -2.385243, 0), V(5.278038, -2.312503, 0), V(5.231824, -2.22369, 0), V(5.192111, -2.115157, 0), V(5.167897, -2.003429, 0), V(5.164992, -1.927927, 0), V(5.163531, -1.889949, 0)], [4, 1, 1, 1, 1, 1, 1, 1, 1, 1, 1, 1, 4], [0, 1.329631726, 2.553950428, 3.673215718, 4.687767853, 5.603093632, 6.413772471, 7.123043292, 7.734684054, 8.834405432, 9.900288307, 10.943827018, 12], False, 3, [1, 1, 1, 1, 1, 1, 1, 1, 1, 1, 1, 1, 1, 1, 1], False), False)
sketch4.addGeometry(Part.LineSegment(V(5.82539, -2.962666, 0), V(7.182761, -4.411183, 0)), False)
sketch4.addGeometry(Part.LineSegment(V(7.182761, -4.411183, 0), V(4.804556, -4.411183, 0)), False)
sketch4.addGeometry(Part.LineSegment(V(4.804556, -4.411183, 0), V(4.804556, -4.052209, 0)), False)
sketch4.addGeometry(Part.LineSegment(V(4.804556, -4.052209, 0), V(6.433262, -4.052209, 0)), False)
sketch4.addGeometry(Part.LineSegment(V(6.433262, -4.052209, 0), V(5.557561, -3.117613, 0)), False)
sketch4.addGeometry(Part.BSplineCurve([V(4.849428, -1.861904, 0), V(4.851121, -1.910652, 0), V(4.854478, -2.007292, 0), V(4.883193, -2.149307, 0), V(4.928039, -2.286901, 0), V(4.982036, -2.397638, 0), V(5.036509, -2.486871, 0), V(5.085596, -2.56034, 0), V(5.143061, -2.639446, 0), V(5.20974, -2.723923, 0), V(5.284253, -2.814434, 0), V(5.367275, -2.910924, 0), V(5.459398, -3.012395, 0), V(5.524057, -3.081701, 0), V(5.557561, -3.117613, 0)], [4, 1, 1, 1, 1, 1, 1, 1, 1, 1, 1, 1, 4], [0, 1.184426356, 2.348067706, 3.509069118, 4.696110526, 5.333549288, 6.050745305, 6.844228056, 7.710549037, 8.667450064, 9.695053472, 10.805634456, 12], False, 3, [1, 1, 1, 1, 1, 1, 1, 1, 1, 1, 1, 1, 1, 1, 1], False), False)
sketch4.addGeometry(Part.BSplineCurve([V(5.90672, -0.82144, 0), V(5.868342, -0.822338, 0), V(5.79293, -0.824103, 0), V(5.682868, -0.839265, 0), V(5.578091, -0.86301, 0), V(5.478803, -0.896326, 0), V(5.385797, -0.94111, 0), V(5.298374, -0.994907, 0), V(5.215493, -1.057127, 0), V(5.140886, -1.130381, 0), V(5.072378, -1.208584, 0), V(5.013276, -1.292071, 0), V(4.962663, -1.378301, 0), V(4.920475, -1.467929, 0), V(4.889419, -1.5618, 0), V(4.865841, -1.658547, 0), V(4.852513, -1.759172, 0), V(4.850468, -1.827279, 0), V(4.849428, -1.861904, 0)], [4, 1, 1, 1, 1, 1, 1, 1, 1, 1, 1, 1, 1, 1, 1, 1, 4], [0, 1.111607364, 2.184268762, 3.212621178, 4.221274766, 5.211760367, 6.196651075, 7.1921475, 8.207485113, 9.220403448, 10.201281604, 11.166441695, 12.114753415, 13.065576456, 14.026450734, 14.996634279, 16], False, 3, [1, 1, 1, 1, 1, 1, 1, 1, 1, 1, 1, 1, 1, 1, 1, 1, 1, 1, 1], False), False)
sketch4.addGeometry(Part.BSplineCurve([V(7.048146, -1.988106, 0), V(7.046099, -1.946435, 0), V(7.042078, -1.864595, 0), V(7.02325, -1.745271, 0), V(6.996309, -1.631216, 0), V(6.958218, -1.523346, 0), V(6.910911, -1.420707, 0), V(6.854181, -1.323707, 0), V(6.786988, -1.232716, 0), V(6.710781, -1.148577, 0), V(6.628012, -1.07139, 0), V(6.538706, -1.004735, 0), V(6.444861, -0.948417, 0), V(6.346762, -0.901336, 0), V(6.243301, -0.865996, 0), V(6.135418, -0.839774, 0), V(6.022639, -0.823998, 0), V(5.945799, -0.822302, 0), V(5.90672, -0.82144, 0)], [4, 1, 1, 1, 1, 1, 1, 1, 1, 1, 1, 1, 1, 1, 1, 1, 4], [0, 1.10065271, 2.161652631, 3.183658789, 4.190468796, 5.17591951, 6.163126047, 7.15150782, 8.156236427, 9.156009102, 10.134482811, 11.092018607, 12.041330605, 13.001268258, 13.972401359, 14.968799086, 16], False, 3, [1, 1, 1, 1, 1, 1, 1, 1, 1, 1, 1, 1, 1, 1, 1, 1, 1, 1, 1], False), False)
sketch4.addConstraint(Sketcher.Constraint("Block", 4))
sketch4.addConstraint(Sketcher.Constraint("Block", 5))
sketch4.addConstraint(Sketcher.Constraint("Block", 9))
sketch4.addConstraint(Sketcher.Constraint("Block", 10))
sketch4.addConstraint(Sketcher.Constraint("Block", 14))
sketch4.addConstraint(Sketcher.Constraint("Block", 15))
sketch4.addConstraint(Sketcher.Constraint("Block", 16))
sketch4.addConstraint(Sketcher.Constraint("Block", 17))
sketch4.addConstraint(Sketcher.Constraint("Block", 18))
sketch4.addConstraint(Sketcher.Constraint("Block", 24))
sketch4.addConstraint(Sketcher.Constraint("Block", 25))
sketch4.addConstraint(Sketcher.Constraint("Block", 29))
sketch4.addConstraint(Sketcher.Constraint("Block", 30))
sketch4.addConstraint(Sketcher.Constraint("Block", 34))
sketch4.addConstraint(Sketcher.Constraint("Block", 35))
sketch4.addConstraint(Sketcher.Constraint("Block", 36))
sketch4.addConstraint(Sketcher.Constraint("Block", 37))
sketch4.addConstraint(Sketcher.Constraint("Block", 38))
sketch4.addConstraint(Sketcher.Constraint("Block", 47))
sketch4.addConstraint(Sketcher.Constraint("Block", 48))
sketch4.addConstraint(Sketcher.Constraint("Block", 49))
sketch4.addConstraint(Sketcher.Constraint("Block", 55))
sketch4.addConstraint(Sketcher.Constraint("Block", 56))
sketch4.addConstraint(Sketcher.Constraint("Block", 57))
sketch4.addConstraint(Sketcher.Constraint("Coincident", 0, 2, 1, 1))
sketch4.addConstraint(Sketcher.Constraint("Coincident", 1, 2, 2, 1))
sketch4.addConstraint(Sketcher.Constraint("Coincident", 2, 2, 3, 1))
sketch4.addConstraint(Sketcher.Constraint("Coincident", 3, 2, 4, 2))
sketch4.addConstraint(Sketcher.Constraint("Coincident", 5, 1, 6, 1))
sketch4.addConstraint(Sketcher.Constraint("Coincident", 6, 2, 7, 1))
sketch4.addConstraint(Sketcher.Constraint("Coincident", 7, 2, 8, 1))
sketch4.addConstraint(Sketcher.Constraint("Coincident", 8, 2, 9, 2))
sketch4.addConstraint(Sketcher.Constraint("Coincident", 10, 1, 11, 1))
sketch4.addConstraint(Sketcher.Constraint("Coincident", 11, 2, 12, 1))
sketch4.addConstraint(Sketcher.Constraint("Coincident", 12, 2, 13, 1))
sketch4.addConstraint(Sketcher.Constraint("Coincident", 13, 2, 14, 2))
sketch4.addConstraint(Sketcher.Constraint("Coincident", 18, 1, 19, 1))
sketch4.addConstraint(Sketcher.Constraint("Coincident", 19, 2, 0, 1))
sketch4.addConstraint(Sketcher.Constraint("Coincident", 20, 2, 21, 1))
sketch4.addConstraint(Sketcher.Constraint("Coincident", 21, 2, 22, 1))
sketch4.addConstraint(Sketcher.Constraint("Coincident", 22, 2, 23, 1))
sketch4.addConstraint(Sketcher.Constraint("Coincident", 23, 2, 24, 2))
sketch4.addConstraint(Sketcher.Constraint("Coincident", 25, 1, 26, 1))
sketch4.addConstraint(Sketcher.Constraint("Coincident", 26, 2, 27, 1))
sketch4.addConstraint(Sketcher.Constraint("Coincident", 27, 2, 28, 1))
sketch4.addConstraint(Sketcher.Constraint("Coincident", 28, 2, 29, 2))
sketch4.addConstraint(Sketcher.Constraint("Coincident", 30, 1, 31, 1))
sketch4.addConstraint(Sketcher.Constraint("Coincident", 31, 2, 32, 1))
sketch4.addConstraint(Sketcher.Constraint("Coincident", 32, 2, 33, 1))
sketch4.addConstraint(Sketcher.Constraint("Coincident", 33, 2, 34, 2))
sketch4.addConstraint(Sketcher.Constraint("Coincident", 38, 1, 39, 1))
sketch4.addConstraint(Sketcher.Constraint("Coincident", 39, 2, 20, 1))
sketch4.addConstraint(Sketcher.Constraint("Coincident", 40, 2, 41, 1))
sketch4.addConstraint(Sketcher.Constraint("Coincident", 41, 2, 42, 1))
sketch4.addConstraint(Sketcher.Constraint("Coincident", 42, 2, 43, 1))
sketch4.addConstraint(Sketcher.Constraint("Coincident", 43, 2, 44, 1))
sketch4.addConstraint(Sketcher.Constraint("Coincident", 44, 2, 45, 1))
sketch4.addConstraint(Sketcher.Constraint("Coincident", 45, 2, 40, 1))
sketch4.addConstraint(Sketcher.Constraint("Coincident", 46, 2, 47, 2))
sketch4.addConstraint(Sketcher.Constraint("Coincident", 49, 1, 50, 1))
sketch4.addConstraint(Sketcher.Constraint("Coincident", 50, 2, 51, 1))
sketch4.addConstraint(Sketcher.Constraint("Coincident", 51, 2, 52, 1))
sketch4.addConstraint(Sketcher.Constraint("Coincident", 52, 2, 53, 1))
sketch4.addConstraint(Sketcher.Constraint("Coincident", 53, 2, 54, 1))
sketch4.addConstraint(Sketcher.Constraint("Coincident", 54, 2, 55, 2))
sketch4.addConstraint(Sketcher.Constraint("Coincident", 57, 1, 46, 1))
sketch4.addConstraint(Sketcher.Constraint("Horizontal", 0))
sketch4.addConstraint(Sketcher.Constraint("Vertical", 1))
sketch4.addConstraint(Sketcher.Constraint("Horizontal", 2))
sketch4.addConstraint(Sketcher.Constraint("Vertical", 3))
sketch4.addConstraint(Sketcher.Constraint("Vertical", 6))
sketch4.addConstraint(Sketcher.Constraint("Horizontal", 7))
sketch4.addConstraint(Sketcher.Constraint("Vertical", 8))
sketch4.addConstraint(Sketcher.Constraint("Vertical", 11))
sketch4.addConstraint(Sketcher.Constraint("Horizontal", 12))
sketch4.addConstraint(Sketcher.Constraint("Vertical", 13))
sketch4.addConstraint(Sketcher.Constraint("Vertical", 19))
sketch4.addConstraint(Sketcher.Constraint("Horizontal", 20))
sketch4.addConstraint(Sketcher.Constraint("Vertical", 21))
sketch4.addConstraint(Sketcher.Constraint("Horizontal", 22))
sketch4.addConstraint(Sketcher.Constraint("Vertical", 23))
sketch4.addConstraint(Sketcher.Constraint("Vertical", 26))
sketch4.addConstraint(Sketcher.Constraint("Horizontal", 27))
sketch4.addConstraint(Sketcher.Constraint("Vertical", 28))
sketch4.addConstraint(Sketcher.Constraint("Vertical", 31))
sketch4.addConstraint(Sketcher.Constraint("Horizontal", 32))
sketch4.addConstraint(Sketcher.Constraint("Vertical", 33))
sketch4.addConstraint(Sketcher.Constraint("Vertical", 39))
sketch4.addConstraint(Sketcher.Constraint("Horizontal", 40))
sketch4.addConstraint(Sketcher.Constraint("Horizontal", 42))
sketch4.addConstraint(Sketcher.Constraint("Vertical", 43))
sketch4.addConstraint(Sketcher.Constraint("Horizontal", 44))
sketch4.addConstraint(Sketcher.Constraint("Vertical", 45))
sketch4.addConstraint(Sketcher.Constraint("Horizontal", 51))
sketch4.addConstraint(Sketcher.Constraint("Vertical", 52))
sketch4.addConstraint(Sketcher.Constraint("Horizontal", 53))
sketch4.addConstraint(Sketcher.Constraint("DistanceY", 45, 1, 45, 2, 3.5))
sketch4.addConstraint(Sketcher.Constraint("DistanceY", 21, 2, 40, 2, 3.5))
sketch4.addConstraint(Sketcher.Constraint("DistanceX", 39, 2, 42, 2, 3.5))
sketch4.addConstraint(Sketcher.Constraint("DistanceY", 50, 2, 40, 2, 3.5))
sketch4.addConstraint(Sketcher.Constraint("DistanceX", 6, 2, 1, 2, 1.75))
sketch4.addConstraint(Sketcher.Constraint("DistanceX", 26, 2, 21, 2, 1.75))
sketch4.addConstraint(Sketcher.Constraint("Distance", 41, 0.413598))
sketch4.addConstraint(Sketcher.Constraint("DistanceX", 42, 2, 42, 1, 0.538462))
sketch4.addConstraint(Sketcher.Constraint("DistanceY", 3, 1, 3, 2, 1.076222))
sketch4.addConstraint(Sketcher.Constraint("DistanceY", 6, 2, 6, 1, 1.300581))
sketch4.addConstraint(Sketcher.Constraint("DistanceY", 11, 2, 11, 1, 1.386819))
sketch4.addConstraint(Sketcher.Constraint("DistanceY", 19, 1, 19, 2, 0.444511))
sketch4.addConstraint(Sketcher.Constraint("DistanceY", 23, 1, 23, 2, 1.076222))
sketch4.addConstraint(Sketcher.Constraint("DistanceY", 26, 2, 26, 1, 1.300581))
sketch4.addConstraint(Sketcher.Constraint("DistanceY", 31, 2, 31, 1, 1.386819))
sketch4.addConstraint(Sketcher.Constraint("DistanceY", 39, 1, 39, 2, 0.444511))
sketch4.addConstraint(Sketcher.Constraint("DistanceX", 53, 2, 50, 2, 0.749499))
sketch4.addConstraint(Sketcher.Constraint("DistanceX", 54, 2, 53, 2, 0.875701))
sketch4.addConstraint(Sketcher.Constraint("Distance", 54, 1.28075))
sketch4.addConstraint(Sketcher.Constraint("DistanceX", 40, 1, 40, 2, 0.647135))
sketch4.addConstraint(Sketcher.Constraint("DistanceX", 44, 2, 44, 1, 0.314103))
sketch4.addConstraint(Sketcher.Constraint("DistanceX", 51, 2, 51, 1, 2.378205))
pocket1 = doc.addObject("PartDesign::Pocket", "Pocket")
body.addObject(pocket1)
pocket1.Profile = sketch4
pocket1.Length = 1
pocket1.Reversed = True

doc.recompute()
